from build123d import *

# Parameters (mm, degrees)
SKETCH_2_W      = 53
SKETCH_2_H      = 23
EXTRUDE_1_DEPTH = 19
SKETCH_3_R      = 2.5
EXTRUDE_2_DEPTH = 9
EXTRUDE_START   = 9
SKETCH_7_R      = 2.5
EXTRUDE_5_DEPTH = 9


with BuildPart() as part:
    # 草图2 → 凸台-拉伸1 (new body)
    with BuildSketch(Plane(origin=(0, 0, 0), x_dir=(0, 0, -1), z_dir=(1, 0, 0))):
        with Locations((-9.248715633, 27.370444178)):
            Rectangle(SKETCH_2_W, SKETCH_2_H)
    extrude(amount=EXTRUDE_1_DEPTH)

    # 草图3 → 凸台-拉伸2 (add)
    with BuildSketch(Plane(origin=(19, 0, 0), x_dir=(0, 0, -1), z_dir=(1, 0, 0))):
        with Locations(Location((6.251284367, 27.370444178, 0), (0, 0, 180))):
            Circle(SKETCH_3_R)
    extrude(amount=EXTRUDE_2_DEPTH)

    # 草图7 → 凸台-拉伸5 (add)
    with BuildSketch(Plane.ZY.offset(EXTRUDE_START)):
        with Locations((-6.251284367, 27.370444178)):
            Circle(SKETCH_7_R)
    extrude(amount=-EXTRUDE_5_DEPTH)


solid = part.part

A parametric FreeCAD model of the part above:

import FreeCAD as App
import Part
import Sketcher


def add_polygon(sketch, points):
    """Adds a closed chain of lines whose ends are joined by coincident constraints."""
    first, n = sketch.GeometryCount, len(points)
    for a, b in zip(points, points[1:] + points[:1]):
        sketch.addGeometry(Part.LineSegment(App.Vector(*a, 0), App.Vector(*b, 0)), False)
    for i in range(n):
        sketch.addConstraint(Sketcher.Constraint("Coincident", first + i, 2, first + (i + 1) % n, 1))

doc = App.newDocument("Part")
body = doc.addObject("PartDesign::Body", "Body")

sketch1 = doc.addObject("Sketcher::SketchObject", "Sketch")
body.addObject(sketch1)
sketch1.AttachmentSupport = (doc.YZ_Plane, [""])
sketch1.MapMode = "FlatFace"
add_polygon(sketch1, [(39, 36), (16, 36), (16, -17), (39, -17)])
sketch1.addConstraint(Sketcher.Constraint("Horizontal", 0))
sketch1.addConstraint(Sketcher.Constraint("Vertical", 1))
sketch1.addConstraint(Sketcher.Constraint("Horizontal", 2))
sketch1.addConstraint(Sketcher.Constraint("Vertical", 3))
sketch1.addConstraint(Sketcher.Constraint("DistanceX", 0, 2, 0, 1, 23.0))
sketch1.addConstraint(Sketcher.Constraint("DistanceY", 1, 2, 1, 1, 53.0))
sketch1.addConstraint(Sketcher.Constraint("DistanceX", -1, 1, 0, 2, 15.870444))
sketch1.addConstraint(Sketcher.Constraint("DistanceY", -1, 1, 0, 2, 35.748716))
pad1 = doc.addObject("PartDesign::Pad", "Pad")
body.addObject(pad1)
pad1.Profile = sketch1
pad1.Length = 19

sketch2 = doc.addObject("Sketcher::SketchObject", "Sketch001")
body.addObject(sketch2)
sketch2.AttachmentSupport = (doc.YZ_Plane, [""])
sketch2.MapMode = "FlatFace"
sketch2.AttachmentOffset = App.Placement(App.Vector(0, 0, 19), App.Rotation())
sketch2.addGeometry(Part.Circle(App.Vector(27.4, -6.3, 0), App.Vector(0, 0, 1), 2.5), False)
sketch2.addConstraint(Sketcher.Constraint("Diameter", 0, 5.0))
sketch2.addConstraint(Sketcher.Constraint("DistanceX", -1, 1, 0, 3, 27.370444))
sketch2.addConstraint(Sketcher.Constraint("DistanceY", 0, 3, -1, 1, 6.251284))
pad2 = doc.addObject("PartDesign::Pad", "Pad001")
body.addObject(pad2)
pad2.Profile = sketch2
pad2.Length = 9

sketch3 = doc.addObject("Sketcher::SketchObject", "Sketch002")
body.addObject(sketch3)
sketch3.AttachmentSupport = (doc.YZ_Plane, [""])
sketch3.MapMode = "FlatFace"
sketch3.AttachmentOffset = App.Placement(App.Vector(0, 0, -9), App.Rotation())
sketch3.addGeometry(Part.Circle(App.Vector(27.4, -6.3, 0), App.Vector(0, 0, 1), 2.5), False)
sketch3.addConstraint(Sketcher.Constraint("Diameter", 0, 5.0))
sketch3.addConstraint(Sketcher.Constraint("DistanceX", -1, 1, 0, 3, 27.370444))
sketch3.addConstraint(Sketcher.Constraint("DistanceY", 0, 3, -1, 1, 6.251284))
pad3 = doc.addObject("PartDesign::Pad", "Pad002")
body.addObject(pad3)
pad3.Profile = sketch3
pad3.Length = 9

doc.recompute()
